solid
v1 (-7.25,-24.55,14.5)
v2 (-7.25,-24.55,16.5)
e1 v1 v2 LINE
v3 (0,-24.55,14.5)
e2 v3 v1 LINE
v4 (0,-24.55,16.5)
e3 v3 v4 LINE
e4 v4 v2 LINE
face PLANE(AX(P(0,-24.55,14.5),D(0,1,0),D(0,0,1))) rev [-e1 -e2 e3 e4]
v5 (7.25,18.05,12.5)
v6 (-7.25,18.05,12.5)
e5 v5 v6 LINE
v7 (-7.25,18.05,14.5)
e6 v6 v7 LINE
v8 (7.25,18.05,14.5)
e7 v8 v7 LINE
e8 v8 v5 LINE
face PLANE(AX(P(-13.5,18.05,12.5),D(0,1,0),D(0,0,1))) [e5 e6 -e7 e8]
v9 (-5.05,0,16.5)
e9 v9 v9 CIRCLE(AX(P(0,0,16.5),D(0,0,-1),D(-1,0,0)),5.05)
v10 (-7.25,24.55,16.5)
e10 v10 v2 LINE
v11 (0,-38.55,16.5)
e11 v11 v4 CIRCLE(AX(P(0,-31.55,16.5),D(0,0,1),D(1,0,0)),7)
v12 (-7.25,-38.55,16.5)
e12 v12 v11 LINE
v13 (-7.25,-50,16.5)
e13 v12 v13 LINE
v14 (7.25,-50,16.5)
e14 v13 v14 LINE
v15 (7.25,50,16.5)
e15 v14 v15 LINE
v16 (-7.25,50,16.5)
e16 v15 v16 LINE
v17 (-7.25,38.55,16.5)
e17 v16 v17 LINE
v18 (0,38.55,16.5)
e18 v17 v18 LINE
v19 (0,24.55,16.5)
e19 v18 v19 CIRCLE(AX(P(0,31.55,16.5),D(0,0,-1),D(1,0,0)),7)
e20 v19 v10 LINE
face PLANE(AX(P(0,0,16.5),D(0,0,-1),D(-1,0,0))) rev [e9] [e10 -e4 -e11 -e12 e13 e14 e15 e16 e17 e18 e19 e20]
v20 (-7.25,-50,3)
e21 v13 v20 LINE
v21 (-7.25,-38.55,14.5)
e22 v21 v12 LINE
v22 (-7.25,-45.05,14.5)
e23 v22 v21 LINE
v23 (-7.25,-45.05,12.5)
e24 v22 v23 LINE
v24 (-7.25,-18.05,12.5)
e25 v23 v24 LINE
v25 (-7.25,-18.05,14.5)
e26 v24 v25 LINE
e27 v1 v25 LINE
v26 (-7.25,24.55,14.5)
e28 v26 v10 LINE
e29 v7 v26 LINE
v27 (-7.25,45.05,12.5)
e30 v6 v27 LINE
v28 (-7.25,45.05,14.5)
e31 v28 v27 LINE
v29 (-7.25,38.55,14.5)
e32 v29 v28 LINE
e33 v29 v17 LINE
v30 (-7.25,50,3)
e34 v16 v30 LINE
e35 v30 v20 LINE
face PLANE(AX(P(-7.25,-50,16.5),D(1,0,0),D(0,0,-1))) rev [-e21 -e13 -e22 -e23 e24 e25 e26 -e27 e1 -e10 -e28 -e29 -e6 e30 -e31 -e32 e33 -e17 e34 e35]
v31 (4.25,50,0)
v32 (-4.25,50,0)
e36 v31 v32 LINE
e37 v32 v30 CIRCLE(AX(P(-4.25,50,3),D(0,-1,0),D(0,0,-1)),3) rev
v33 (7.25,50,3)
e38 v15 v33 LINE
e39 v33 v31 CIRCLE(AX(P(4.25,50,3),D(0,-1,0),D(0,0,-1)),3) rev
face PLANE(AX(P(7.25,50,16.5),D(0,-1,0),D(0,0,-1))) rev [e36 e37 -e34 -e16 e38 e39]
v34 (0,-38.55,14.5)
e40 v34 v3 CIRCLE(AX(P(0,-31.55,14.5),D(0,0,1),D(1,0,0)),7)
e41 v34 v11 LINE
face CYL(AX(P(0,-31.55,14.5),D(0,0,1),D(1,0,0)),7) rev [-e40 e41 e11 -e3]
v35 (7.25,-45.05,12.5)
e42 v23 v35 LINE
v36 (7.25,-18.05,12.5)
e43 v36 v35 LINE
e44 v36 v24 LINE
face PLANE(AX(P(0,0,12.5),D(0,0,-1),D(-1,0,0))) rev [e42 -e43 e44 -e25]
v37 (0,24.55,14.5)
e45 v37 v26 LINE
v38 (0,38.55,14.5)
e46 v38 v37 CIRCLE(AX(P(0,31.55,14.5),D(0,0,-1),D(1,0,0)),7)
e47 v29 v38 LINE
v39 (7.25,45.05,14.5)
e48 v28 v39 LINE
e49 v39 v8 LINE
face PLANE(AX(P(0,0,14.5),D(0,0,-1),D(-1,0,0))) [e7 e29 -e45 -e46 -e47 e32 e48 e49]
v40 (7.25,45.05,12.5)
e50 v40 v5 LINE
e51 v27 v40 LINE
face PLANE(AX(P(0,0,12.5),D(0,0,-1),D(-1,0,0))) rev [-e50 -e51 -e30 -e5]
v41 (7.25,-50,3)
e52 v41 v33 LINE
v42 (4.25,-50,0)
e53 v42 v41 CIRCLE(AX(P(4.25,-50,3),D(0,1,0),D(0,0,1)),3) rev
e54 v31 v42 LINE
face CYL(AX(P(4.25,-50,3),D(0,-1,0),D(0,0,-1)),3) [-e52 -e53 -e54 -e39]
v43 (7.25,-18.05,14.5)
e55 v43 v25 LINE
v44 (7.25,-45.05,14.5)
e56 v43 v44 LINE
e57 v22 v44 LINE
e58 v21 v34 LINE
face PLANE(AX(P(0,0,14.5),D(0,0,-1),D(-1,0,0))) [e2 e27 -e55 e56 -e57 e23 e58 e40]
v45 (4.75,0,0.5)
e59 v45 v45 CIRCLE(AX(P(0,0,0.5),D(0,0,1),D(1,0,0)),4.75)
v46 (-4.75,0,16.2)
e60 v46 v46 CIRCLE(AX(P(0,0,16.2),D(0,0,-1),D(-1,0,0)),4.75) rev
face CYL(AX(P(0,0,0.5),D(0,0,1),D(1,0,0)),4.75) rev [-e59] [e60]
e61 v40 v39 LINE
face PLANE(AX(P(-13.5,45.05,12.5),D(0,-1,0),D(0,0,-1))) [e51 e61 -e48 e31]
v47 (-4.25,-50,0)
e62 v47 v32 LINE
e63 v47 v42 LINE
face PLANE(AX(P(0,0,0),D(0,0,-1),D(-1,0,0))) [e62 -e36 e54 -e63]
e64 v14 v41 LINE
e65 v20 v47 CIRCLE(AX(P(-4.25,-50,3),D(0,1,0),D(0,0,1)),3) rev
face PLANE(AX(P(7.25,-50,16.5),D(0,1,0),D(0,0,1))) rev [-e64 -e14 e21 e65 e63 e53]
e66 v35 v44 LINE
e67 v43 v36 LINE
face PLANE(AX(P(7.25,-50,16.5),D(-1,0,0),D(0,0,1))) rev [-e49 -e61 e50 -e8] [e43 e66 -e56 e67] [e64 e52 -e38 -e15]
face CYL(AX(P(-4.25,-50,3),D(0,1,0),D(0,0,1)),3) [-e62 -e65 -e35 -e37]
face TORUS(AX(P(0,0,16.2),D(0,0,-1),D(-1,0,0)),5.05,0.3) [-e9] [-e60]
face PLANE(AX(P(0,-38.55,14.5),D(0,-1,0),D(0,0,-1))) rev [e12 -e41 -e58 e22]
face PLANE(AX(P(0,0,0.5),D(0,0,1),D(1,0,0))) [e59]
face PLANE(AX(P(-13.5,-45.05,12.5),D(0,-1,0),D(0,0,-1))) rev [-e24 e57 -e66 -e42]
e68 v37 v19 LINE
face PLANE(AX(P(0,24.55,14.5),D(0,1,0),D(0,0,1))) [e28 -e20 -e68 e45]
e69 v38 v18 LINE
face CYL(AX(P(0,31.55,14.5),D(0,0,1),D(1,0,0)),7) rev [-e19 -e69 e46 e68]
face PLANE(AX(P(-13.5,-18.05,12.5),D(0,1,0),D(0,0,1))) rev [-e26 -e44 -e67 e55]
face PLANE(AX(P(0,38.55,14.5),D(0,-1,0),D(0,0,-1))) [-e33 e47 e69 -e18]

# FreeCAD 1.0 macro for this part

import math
import FreeCAD as App
import Part
import Sketcher

V = App.Vector
Q = App.Units.Quantity


def edges_at(feature, points):
    """Names of the edges that pass closest to the given points."""
    edges = feature.Shape.Edges
    near = lambda p: min(range(len(edges)), key=lambda i: edges[i].distToShape(Part.Vertex(*p))[0])
    return sorted({f"Edge{near(p) + 1}" for p in points})

doc = App.newDocument("Part")
params = doc.addObject("Spreadsheet::Sheet", "Params")
for row, (alias, value) in enumerate([
    ("sketch1_height", "100 mm"),
    ("sketch1_width", "14.5 mm"),
    ("pad1_length", "16.5 mm"),
    ("sketch2_diameter", "9.5 mm"),
    ("pocket1_length", "16 mm"),
    ("sketch3_width", "27 mm"),
    ("pocket2_length", "2 mm"),
    ("sketch4_radius", "7 mm"),
    ("sketch4_width", "7.25 mm"),
    ("pocket3_length", "2 mm"),
    ("fillet_radius", "3 mm"),
    ("fillet2_radius", "3 mm"),
    ("fillet3_radius", "0.3 mm"),
], start=1):
    params.set(f"A{row}", alias)
    params.set(f"B{row}", "=" + value)
    params.setAlias(f"B{row}", alias)

body = doc.addObject("PartDesign::Body", "Body")

sketch1 = doc.addObject("Sketcher::SketchObject", "Sketch")
body.addObject(sketch1)
sketch1.AttachmentSupport = (doc.XY_Plane, [""])
sketch1.MapMode = "FlatFace"
sketch1.addGeometry(Part.LineSegment(V(-7, -50, 0), V(7, -50, 0)), False)
sketch1.addGeometry(Part.LineSegment(V(7, -50, 0), V(7, 50, 0)), False)
sketch1.addGeometry(Part.LineSegment(V(7, 50, 0), V(-7, 50, 0)), False)
sketch1.addGeometry(Part.LineSegment(V(-7, 50, 0), V(-7, -50, 0)), False)
sketch1.addConstraint(Sketcher.Constraint("Coincident", 0, 2, 1, 1))
sketch1.addConstraint(Sketcher.Constraint("Coincident", 1, 2, 2, 1))
sketch1.addConstraint(Sketcher.Constraint("Coincident", 2, 2, 3, 1))
sketch1.addConstraint(Sketcher.Constraint("Coincident", 3, 2, 0, 1))
sketch1.addConstraint(Sketcher.Constraint("Horizontal", 0))
sketch1.addConstraint(Sketcher.Constraint("Vertical", 1))
sketch1.addConstraint(Sketcher.Constraint("Horizontal", 2))
sketch1.addConstraint(Sketcher.Constraint("Vertical", 3))
sketch1.addConstraint(Sketcher.Constraint("Symmetric", 0, 2, 2, 2, -1, 1))
sketch1.addConstraint(Sketcher.Constraint("DistanceY", 1, 1, 1, 2, Q("100 mm")))
sketch1.addConstraint(Sketcher.Constraint("DistanceX", 0, 1, 0, 2, Q("14.5 mm")))
sketch1.setExpression("Constraints[9]", "Params.sketch1_height")
sketch1.setExpression("Constraints[10]", "Params.sketch1_width")
pad1 = doc.addObject("PartDesign::Pad", "Pad")
body.addObject(pad1)
pad1.Profile = sketch1
pad1.setExpression("Length", "Params.pad1_length")

sketch2 = doc.addObject("Sketcher::SketchObject", "Sketch001")
body.addObject(sketch2)
sketch2.AttachmentSupport = (doc.XY_Plane, [""])
sketch2.MapMode = "FlatFace"
sketch2.AttachmentOffset = App.Placement(V(0, 0, 16.5), App.Rotation())
sketch2.addGeometry(Part.Circle(V(0, 0, 0), V(0, 0, 1), 4.8), False)
sketch2.addConstraint(Sketcher.Constraint("Coincident", 0, 3, -1, 1))
sketch2.addConstraint(Sketcher.Constraint("Diameter", 0, Q("9.5 mm")))
sketch2.setExpression("Constraints[1]", "Params.sketch2_diameter")
pocket1 = doc.addObject("PartDesign::Pocket", "Pocket")
body.addObject(pocket1)
pocket1.Profile = sketch2
pocket1.setExpression("Length", "Params.pocket1_length")

sketch3 = doc.addObject("Sketcher::SketchObject", "Sketch002")
body.addObject(sketch3)
sketch3.AttachmentSupport = (doc.XY_Plane, [""])
sketch3.MapMode = "FlatFace"
sketch3.AttachmentOffset = App.Placement(V(0, 0, 14.5), App.Rotation())
sketch3.addGeometry(Part.LineSegment(V(-14, -18, 0), V(-14, -45, 0)), False)
sketch3.addGeometry(Part.LineSegment(V(-14, -45, 0), V(14, -45, 0)), False)
sketch3.addGeometry(Part.LineSegment(V(14, -45, 0), V(14, -18, 0)), False)
sketch3.addGeometry(Part.LineSegment(V(14, -18, 0), V(-14, -18, 0)), False)
sketch3.addConstraint(Sketcher.Constraint("Coincident", 0, 2, 1, 1))
sketch3.addConstraint(Sketcher.Constraint("Coincident", 1, 2, 2, 1))
sketch3.addConstraint(Sketcher.Constraint("Coincident", 2, 2, 3, 1))
sketch3.addConstraint(Sketcher.Constraint("Coincident", 3, 2, 0, 1))
sketch3.addConstraint(Sketcher.Constraint("Vertical", 0))
sketch3.addConstraint(Sketcher.Constraint("Horizontal", 1))
sketch3.addConstraint(Sketcher.Constraint("Vertical", 2))
sketch3.addConstraint(Sketcher.Constraint("Horizontal", 3))
sketch3.addConstraint(Sketcher.Constraint("Equal", 3, 0))
sketch3.addConstraint(Sketcher.Constraint("DistanceX", 1, 1, 1, 2, Q("27 mm")))
sketch3.addConstraint(Sketcher.Constraint("DistanceX", 0, 2, -1, 1, Q("13.5 mm")))
sketch3.addConstraint(Sketcher.Constraint("DistanceY", 0, 2, -1, 1, Q("45.05 mm")))
sketch3.setExpression("Constraints[9]", "Params.sketch3_width")
pocket2 = doc.addObject("PartDesign::Pocket", "Pocket001")
body.addObject(pocket2)
pocket2.Profile = sketch3
pocket2.setExpression("Length", "Params.pocket2_length")

sketch4 = doc.addObject("Sketcher::SketchObject", "Sketch003")
body.addObject(sketch4)
sketch4.AttachmentSupport = (doc.XY_Plane, [""])
sketch4.MapMode = "FlatFace"
sketch4.AttachmentOffset = App.Placement(V(0, 0, 16.5), App.Rotation())
sketch4.addGeometry(Part.LineSegment(V(0, -25, 0), V(-7, -25, 0)), False)
sketch4.addGeometry(Part.LineSegment(V(-7, -25, 0), V(-7, -39, 0)), False)
sketch4.addGeometry(Part.LineSegment(V(-7, -39, 0), V(0, -39, 0)), False)
sketch4.addGeometry(Part.ArcOfCircle(Part.Circle(V(0, -32, 0), V(0, 0, 1), 7), math.radians(-90), math.radians(90)), False)
sketch4.addConstraint(Sketcher.Constraint("Coincident", 0, 2, 1, 1))
sketch4.addConstraint(Sketcher.Constraint("Coincident", 1, 2, 2, 1))
sketch4.addConstraint(Sketcher.Constraint("Tangent", 2, 2, 3, 1))
sketch4.addConstraint(Sketcher.Constraint("Tangent", 3, 2, 0, 1))
sketch4.addConstraint(Sketcher.Constraint("Horizontal", 0))
sketch4.addConstraint(Sketcher.Constraint("Vertical", 1))
sketch4.addConstraint(Sketcher.Constraint("Horizontal", 2))
sketch4.addConstraint(Sketcher.Constraint("PointOnObject", 3, 3, -2))
sketch4.addConstraint(Sketcher.Constraint("Radius", 3, Q("7 mm")))
sketch4.addConstraint(Sketcher.Constraint("DistanceX", 0, 2, 0, 1, Q("7.25 mm")))
sketch4.addConstraint(Sketcher.Constraint("DistanceY", 3, 3, -1, 1, Q("31.55 mm")))
sketch4.setExpression("Constraints[8]", "Params.sketch4_radius")
sketch4.setExpression("Constraints[9]", "Params.sketch4_width")
pocket3 = doc.addObject("PartDesign::Pocket", "Pocket002")
body.addObject(pocket3)
pocket3.Profile = sketch4
pocket3.setExpression("Length", "Params.pocket3_length")
doc.recompute()

mirrored = doc.addObject("PartDesign::Mirrored", "Mirrored")
body.addObject(mirrored)
mirrored.Originals = [pocket2]
mirrored.MirrorPlane = (doc.XZ_Plane, [""])
body.Tip = mirrored
doc.recompute()

mirrored2 = doc.addObject("PartDesign::Mirrored", "Mirrored001")
body.addObject(mirrored2)
mirrored2.Originals = [pocket3]
mirrored2.MirrorPlane = (doc.XZ_Plane, [""])
body.Tip = mirrored2
doc.recompute()

fillet = doc.addObject("PartDesign::Fillet", "Fillet")
body.addObject(fillet)
fillet.Base = (mirrored2, edges_at(mirrored2, [(-7.25, 0, 0)]))
fillet.setExpression("Radius", "Params.fillet_radius")
doc.recompute()

fillet2 = doc.addObject("PartDesign::Fillet", "Fillet001")
body.addObject(fillet2)
fillet2.Base = (fillet, edges_at(fillet, [(7.25, 0, 0)]))
fillet2.setExpression("Radius", "Params.fillet2_radius")
doc.recompute()

fillet3 = doc.addObject("PartDesign::Fillet", "Fillet002")
body.addObject(fillet3)
fillet3.Base = (fillet2, edges_at(fillet2, [(-4.75, 0, 16.5)]))
fillet3.setExpression("Radius", "Params.fillet3_radius")

doc.recompute()
